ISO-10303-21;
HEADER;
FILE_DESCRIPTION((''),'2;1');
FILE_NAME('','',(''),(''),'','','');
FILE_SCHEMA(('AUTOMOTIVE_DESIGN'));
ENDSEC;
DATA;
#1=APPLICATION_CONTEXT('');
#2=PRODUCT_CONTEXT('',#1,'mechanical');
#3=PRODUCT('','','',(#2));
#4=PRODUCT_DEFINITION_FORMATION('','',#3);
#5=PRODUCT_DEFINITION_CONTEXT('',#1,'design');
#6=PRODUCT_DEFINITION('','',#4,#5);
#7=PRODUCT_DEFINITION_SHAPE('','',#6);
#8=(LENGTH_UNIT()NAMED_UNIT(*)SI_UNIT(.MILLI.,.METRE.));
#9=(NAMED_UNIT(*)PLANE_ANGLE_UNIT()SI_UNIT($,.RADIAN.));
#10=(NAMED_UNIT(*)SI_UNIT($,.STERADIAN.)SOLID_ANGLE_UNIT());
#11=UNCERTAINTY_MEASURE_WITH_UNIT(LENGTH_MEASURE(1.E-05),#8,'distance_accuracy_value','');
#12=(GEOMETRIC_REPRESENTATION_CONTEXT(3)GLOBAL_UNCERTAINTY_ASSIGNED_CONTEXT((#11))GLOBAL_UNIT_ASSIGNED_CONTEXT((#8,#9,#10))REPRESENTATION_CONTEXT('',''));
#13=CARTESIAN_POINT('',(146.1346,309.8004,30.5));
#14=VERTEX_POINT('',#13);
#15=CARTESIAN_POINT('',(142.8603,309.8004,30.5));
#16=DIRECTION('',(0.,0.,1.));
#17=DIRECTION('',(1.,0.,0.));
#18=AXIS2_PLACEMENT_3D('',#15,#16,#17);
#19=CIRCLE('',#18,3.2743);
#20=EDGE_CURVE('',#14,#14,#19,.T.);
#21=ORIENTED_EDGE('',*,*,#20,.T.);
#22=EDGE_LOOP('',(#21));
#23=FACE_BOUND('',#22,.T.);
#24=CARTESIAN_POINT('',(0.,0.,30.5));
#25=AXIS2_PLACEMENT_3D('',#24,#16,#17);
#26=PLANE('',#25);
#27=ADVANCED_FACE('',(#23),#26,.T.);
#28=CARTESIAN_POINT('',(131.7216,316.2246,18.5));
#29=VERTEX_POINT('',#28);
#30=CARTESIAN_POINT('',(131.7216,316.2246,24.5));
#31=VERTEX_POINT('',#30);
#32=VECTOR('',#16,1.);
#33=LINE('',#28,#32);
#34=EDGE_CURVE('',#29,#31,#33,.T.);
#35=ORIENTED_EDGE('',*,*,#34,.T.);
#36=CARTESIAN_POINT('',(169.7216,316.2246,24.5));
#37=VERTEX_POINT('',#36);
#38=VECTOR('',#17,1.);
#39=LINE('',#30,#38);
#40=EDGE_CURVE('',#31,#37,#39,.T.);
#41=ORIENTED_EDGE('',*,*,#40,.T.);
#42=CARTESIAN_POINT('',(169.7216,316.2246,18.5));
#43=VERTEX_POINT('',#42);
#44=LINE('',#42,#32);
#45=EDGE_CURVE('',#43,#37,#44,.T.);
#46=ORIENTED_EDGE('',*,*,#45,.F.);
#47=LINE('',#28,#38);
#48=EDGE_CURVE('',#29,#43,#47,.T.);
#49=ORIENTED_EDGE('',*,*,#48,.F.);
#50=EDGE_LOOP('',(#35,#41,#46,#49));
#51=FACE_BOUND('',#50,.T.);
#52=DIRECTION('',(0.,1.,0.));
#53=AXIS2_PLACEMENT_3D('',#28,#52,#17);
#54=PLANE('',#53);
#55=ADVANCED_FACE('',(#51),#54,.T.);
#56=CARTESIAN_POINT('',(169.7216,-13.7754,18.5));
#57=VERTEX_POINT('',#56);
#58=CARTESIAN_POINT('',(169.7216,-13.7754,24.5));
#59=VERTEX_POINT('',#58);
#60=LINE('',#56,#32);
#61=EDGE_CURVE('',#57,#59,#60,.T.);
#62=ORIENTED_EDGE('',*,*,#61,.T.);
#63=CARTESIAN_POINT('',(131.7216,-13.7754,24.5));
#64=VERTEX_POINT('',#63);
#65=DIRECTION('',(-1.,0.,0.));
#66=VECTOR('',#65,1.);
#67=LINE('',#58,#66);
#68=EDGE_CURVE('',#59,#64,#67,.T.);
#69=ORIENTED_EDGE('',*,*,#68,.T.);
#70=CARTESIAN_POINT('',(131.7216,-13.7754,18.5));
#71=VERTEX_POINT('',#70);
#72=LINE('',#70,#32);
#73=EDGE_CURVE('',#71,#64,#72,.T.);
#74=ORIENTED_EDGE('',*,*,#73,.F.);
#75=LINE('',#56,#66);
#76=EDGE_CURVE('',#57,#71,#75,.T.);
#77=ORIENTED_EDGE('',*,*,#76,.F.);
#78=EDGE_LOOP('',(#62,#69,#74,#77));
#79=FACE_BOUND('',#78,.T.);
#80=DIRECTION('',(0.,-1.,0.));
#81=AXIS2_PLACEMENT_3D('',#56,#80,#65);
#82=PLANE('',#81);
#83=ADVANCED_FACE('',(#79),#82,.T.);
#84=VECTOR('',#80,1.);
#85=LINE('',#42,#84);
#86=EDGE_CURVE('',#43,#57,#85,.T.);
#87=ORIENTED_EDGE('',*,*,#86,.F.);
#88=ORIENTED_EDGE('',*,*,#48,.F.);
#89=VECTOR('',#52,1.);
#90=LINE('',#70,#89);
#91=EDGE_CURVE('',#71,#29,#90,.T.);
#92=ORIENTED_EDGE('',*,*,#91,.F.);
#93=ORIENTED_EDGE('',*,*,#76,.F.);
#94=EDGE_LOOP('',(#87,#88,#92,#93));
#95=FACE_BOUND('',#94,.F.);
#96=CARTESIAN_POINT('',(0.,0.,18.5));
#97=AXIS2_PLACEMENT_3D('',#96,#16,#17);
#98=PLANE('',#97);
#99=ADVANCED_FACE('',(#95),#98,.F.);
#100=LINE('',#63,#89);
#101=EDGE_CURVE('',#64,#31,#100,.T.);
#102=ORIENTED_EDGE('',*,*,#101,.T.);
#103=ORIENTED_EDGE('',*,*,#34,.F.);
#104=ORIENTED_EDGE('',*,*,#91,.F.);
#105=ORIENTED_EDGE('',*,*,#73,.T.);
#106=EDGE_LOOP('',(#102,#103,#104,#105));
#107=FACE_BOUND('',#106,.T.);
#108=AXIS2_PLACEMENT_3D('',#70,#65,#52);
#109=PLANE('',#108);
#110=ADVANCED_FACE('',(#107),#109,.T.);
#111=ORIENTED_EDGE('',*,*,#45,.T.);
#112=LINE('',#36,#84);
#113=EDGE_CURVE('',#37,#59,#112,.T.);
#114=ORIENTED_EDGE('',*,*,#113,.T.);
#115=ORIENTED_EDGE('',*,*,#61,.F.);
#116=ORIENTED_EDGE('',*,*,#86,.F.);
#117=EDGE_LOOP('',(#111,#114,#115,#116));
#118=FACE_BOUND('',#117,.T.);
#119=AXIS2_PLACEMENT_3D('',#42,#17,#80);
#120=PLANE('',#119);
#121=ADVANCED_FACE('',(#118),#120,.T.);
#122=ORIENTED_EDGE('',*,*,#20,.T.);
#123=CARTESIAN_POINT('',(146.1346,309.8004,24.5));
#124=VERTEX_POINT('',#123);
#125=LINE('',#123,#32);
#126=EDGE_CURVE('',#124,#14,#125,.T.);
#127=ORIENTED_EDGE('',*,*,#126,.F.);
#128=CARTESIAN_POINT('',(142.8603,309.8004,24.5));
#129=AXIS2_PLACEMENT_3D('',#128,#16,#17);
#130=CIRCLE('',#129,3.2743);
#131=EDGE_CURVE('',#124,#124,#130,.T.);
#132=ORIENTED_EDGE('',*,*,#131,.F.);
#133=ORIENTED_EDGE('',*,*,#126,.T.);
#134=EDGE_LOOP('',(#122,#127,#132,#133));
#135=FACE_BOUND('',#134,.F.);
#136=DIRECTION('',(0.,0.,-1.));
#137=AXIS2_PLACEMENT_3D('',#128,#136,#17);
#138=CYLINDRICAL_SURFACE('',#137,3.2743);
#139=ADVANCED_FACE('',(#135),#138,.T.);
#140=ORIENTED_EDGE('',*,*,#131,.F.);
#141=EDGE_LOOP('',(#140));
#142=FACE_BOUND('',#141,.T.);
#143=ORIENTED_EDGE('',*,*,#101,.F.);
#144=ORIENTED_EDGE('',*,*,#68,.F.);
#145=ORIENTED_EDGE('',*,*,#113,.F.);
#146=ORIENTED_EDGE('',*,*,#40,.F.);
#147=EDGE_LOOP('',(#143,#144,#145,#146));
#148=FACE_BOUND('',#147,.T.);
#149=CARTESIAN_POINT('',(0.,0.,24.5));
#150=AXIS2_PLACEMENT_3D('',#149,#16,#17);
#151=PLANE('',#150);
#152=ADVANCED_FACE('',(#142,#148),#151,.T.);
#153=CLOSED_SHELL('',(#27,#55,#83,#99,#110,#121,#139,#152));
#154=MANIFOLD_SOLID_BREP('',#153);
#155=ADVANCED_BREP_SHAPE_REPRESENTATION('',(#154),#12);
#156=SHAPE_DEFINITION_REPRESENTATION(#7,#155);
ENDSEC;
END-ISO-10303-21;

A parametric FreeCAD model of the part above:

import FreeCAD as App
import Part
import Sketcher
Q = App.Units.Quantity

doc = App.newDocument("Part")
body = doc.addObject("PartDesign::Body", "Body")

sketch1 = body.newObject("Sketcher::SketchObject", "Sketch")
sketch1.AttachmentSupport = (doc.getObject("XY_Plane"), [""])
sketch1.MapMode = "FlatFace"
sketch1.AttachmentOffset = App.Placement(App.Vector(0, 0, 18.5), App.Rotation())
sketch1.addGeometry([
    Part.LineSegment(App.Vector(170, 316, 0), App.Vector(132, 316, 0)),
    Part.LineSegment(App.Vector(132, 316, 0), App.Vector(132, -14, 0)),
    Part.LineSegment(App.Vector(132, -14, 0), App.Vector(170, -14, 0)),
    Part.LineSegment(App.Vector(170, -14, 0), App.Vector(170, 316, 0)),
], False)
sketch1.addConstraint([
    Sketcher.Constraint("Coincident", 0, 2, 1, 1),
    Sketcher.Constraint("Coincident", 1, 2, 2, 1),
    Sketcher.Constraint("Coincident", 2, 2, 3, 1),
    Sketcher.Constraint("Coincident", 3, 2, 0, 1),
    Sketcher.Constraint("Horizontal", 0),
    Sketcher.Constraint("Vertical", 1),
    Sketcher.Constraint("Horizontal", 2),
    Sketcher.Constraint("Vertical", 3),
    Sketcher.Constraint("DistanceX", 0, 2, 0, 1, Q("38 mm")),
    Sketcher.Constraint("DistanceY", 1, 2, 1, 1, Q("330 mm")),
    Sketcher.Constraint("DistanceX", -1, 1, 0, 2, Q("131.7216 mm")),
    Sketcher.Constraint("DistanceY", -1, 1, 0, 2, Q("316.2246 mm")),
])
pad1 = body.newObject("PartDesign::Pad", "Pad")
pad1.Profile = sketch1
pad1.Length = 6

sketch2 = body.newObject("Sketcher::SketchObject", "Sketch001")
sketch2.AttachmentSupport = (doc.getObject("XY_Plane"), [""])
sketch2.MapMode = "FlatFace"
sketch2.AttachmentOffset = App.Placement(App.Vector(0, 0, 24.5), App.Rotation())
sketch2.addGeometry(Part.Circle(App.Vector(142.9, 309.8, 0), App.Vector(0, 0, 1), 3.3), False)
sketch2.addConstraint([
    Sketcher.Constraint("Diameter", 0, Q("6.5486 mm")),
    Sketcher.Constraint("DistanceX", -1, 1, 0, 3, Q("142.8603 mm")),
    Sketcher.Constraint("DistanceY", -1, 1, 0, 3, Q("309.8004 mm")),
])
pad2 = body.newObject("PartDesign::Pad", "Pad001")
pad2.Profile = sketch2
pad2.Length = 6

doc.recompute()
